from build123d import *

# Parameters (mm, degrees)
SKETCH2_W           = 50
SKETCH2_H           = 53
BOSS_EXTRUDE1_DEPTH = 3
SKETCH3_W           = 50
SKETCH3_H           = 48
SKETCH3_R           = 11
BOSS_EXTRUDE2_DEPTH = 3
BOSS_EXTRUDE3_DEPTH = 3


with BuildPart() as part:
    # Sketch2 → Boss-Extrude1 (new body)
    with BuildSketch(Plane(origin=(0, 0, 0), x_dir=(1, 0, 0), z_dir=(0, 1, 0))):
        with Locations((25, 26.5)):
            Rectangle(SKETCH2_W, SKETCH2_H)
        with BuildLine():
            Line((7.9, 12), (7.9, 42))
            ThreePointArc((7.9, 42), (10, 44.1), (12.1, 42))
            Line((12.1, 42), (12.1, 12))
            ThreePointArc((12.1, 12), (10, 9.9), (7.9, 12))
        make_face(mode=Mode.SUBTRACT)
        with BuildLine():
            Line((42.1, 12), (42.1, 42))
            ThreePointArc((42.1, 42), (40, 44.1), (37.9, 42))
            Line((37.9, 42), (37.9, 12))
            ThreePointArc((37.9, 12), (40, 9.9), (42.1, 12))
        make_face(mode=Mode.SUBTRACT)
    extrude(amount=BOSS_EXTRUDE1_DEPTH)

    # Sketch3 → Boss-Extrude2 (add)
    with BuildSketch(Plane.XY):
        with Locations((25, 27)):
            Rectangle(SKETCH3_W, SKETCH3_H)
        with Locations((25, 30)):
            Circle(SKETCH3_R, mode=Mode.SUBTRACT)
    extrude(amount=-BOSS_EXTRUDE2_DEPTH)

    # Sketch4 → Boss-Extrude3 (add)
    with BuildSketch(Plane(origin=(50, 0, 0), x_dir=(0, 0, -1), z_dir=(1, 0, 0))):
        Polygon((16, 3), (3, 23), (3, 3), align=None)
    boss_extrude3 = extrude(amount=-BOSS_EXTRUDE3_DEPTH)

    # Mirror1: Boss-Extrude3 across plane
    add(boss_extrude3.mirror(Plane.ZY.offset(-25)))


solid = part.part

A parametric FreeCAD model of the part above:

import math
import FreeCAD as App
import Part
import Sketcher
from FreeCAD import Vector
Q = App.Units.Quantity

doc = App.newDocument("Part")
body = doc.addObject("PartDesign::Body", "Body")

# Sketch on XZ plane
sketch1 = doc.addObject("Sketcher::SketchObject", "Sketch")
body.addObject(sketch1)
sketch1.AttachmentSupport = (doc.XZ_Plane, [""])
sketch1.MapMode = "FlatFace"
sketch1.addGeometry([
    Part.LineSegment(Vector(0, -53, 0), Vector(0, 0, 0)),  # 0
    Part.LineSegment(Vector(0, 0, 0), Vector(50, 0, 0)),  # 1
    Part.LineSegment(Vector(50, 0, 0), Vector(50, -53, 0)),  # 2
    Part.LineSegment(Vector(50, -53, 0), Vector(0, -53, 0)),  # 3
    Part.ArcOfCircle(Part.Circle(Vector(10, -12, 0), Vector(0, 0, 1), 2.1), math.radians(0), math.radians(180)),  # 4
    Part.LineSegment(Vector(7.9, -12, 0), Vector(7.9, -42, 0)),  # 5
    Part.ArcOfCircle(Part.Circle(Vector(10, -42, 0), Vector(0, 0, 1), 2.1), math.radians(180), math.radians(360)),  # 6
    Part.LineSegment(Vector(12.1, -42, 0), Vector(12.1, -12, 0)),  # 7
    Part.LineSegment(Vector(42.1, -42, 0), Vector(42.1, -12, 0)),  # 8
    Part.ArcOfCircle(Part.Circle(Vector(40, -12, 0), Vector(0, 0, 1), 2.1), math.radians(0), math.radians(180)),  # 9
    Part.LineSegment(Vector(37.9, -12, 0), Vector(37.9, -42, 0)),  # 10
    Part.ArcOfCircle(Part.Circle(Vector(40, -42, 0), Vector(0, 0, 1), 2.1), math.radians(180), math.radians(360)),  # 11
], False)
sketch1.addConstraint([
    Sketcher.Constraint("Coincident", 0, 2, 1, 1),
    Sketcher.Constraint("Coincident", 1, 2, 2, 1),
    Sketcher.Constraint("Coincident", 2, 2, 3, 1),
    Sketcher.Constraint("Coincident", 3, 2, 0, 1),
    Sketcher.Constraint("Tangent", 4, 2, 5, 1),
    Sketcher.Constraint("Tangent", 5, 2, 6, 1),
    Sketcher.Constraint("Tangent", 6, 2, 7, 1),
    Sketcher.Constraint("Tangent", 7, 2, 4, 1),
    Sketcher.Constraint("Tangent", 8, 2, 9, 1),
    Sketcher.Constraint("Tangent", 9, 2, 10, 1),
    Sketcher.Constraint("Tangent", 10, 2, 11, 1),
    Sketcher.Constraint("Tangent", 11, 2, 8, 1),
    Sketcher.Constraint("Vertical", 0),
    Sketcher.Constraint("Horizontal", 1),
    Sketcher.Constraint("Vertical", 2),
    Sketcher.Constraint("Horizontal", 3),
    Sketcher.Constraint("Vertical", 5),
    Sketcher.Constraint("Vertical", 7),
    Sketcher.Constraint("Vertical", 8),
    Sketcher.Constraint("Vertical", 10),
    Sketcher.Constraint("Coincident", 0, 2, -1, 1),
    Sketcher.Constraint("Equal", 6, 9),
    Sketcher.Constraint("Horizontal", 4, 3, 9, 3),
    Sketcher.Constraint("Horizontal", 6, 3, 11, 3),
    Sketcher.Constraint("Radius", 4, Q("2.1 mm")),
    Sketcher.Constraint("DistanceX", 1, 1, 1, 2, Q("50 mm")),
    Sketcher.Constraint("DistanceY", 0, 1, 0, 2, Q("53 mm")),
    Sketcher.Constraint("DistanceY", 5, 2, 5, 1, Q("30 mm")),
    Sketcher.Constraint("DistanceX", -1, 1, 4, 3, Q("10 mm")),
    Sketcher.Constraint("DistanceY", 4, 3, -1, 1, Q("12 mm")),
    Sketcher.Constraint("DistanceX", -1, 1, 9, 3, Q("40 mm")),
])
pad1 = doc.addObject("PartDesign::Pad", "Pad")
body.addObject(pad1)
pad1.Profile = sketch1
pad1.Length = 3
pad1.Reversed = True

# Sketch on XY plane
sketch2 = doc.addObject("Sketcher::SketchObject", "Sketch001")
body.addObject(sketch2)
sketch2.AttachmentSupport = (doc.XY_Plane, [""])
sketch2.MapMode = "FlatFace"
sketch2.addGeometry([
    Part.LineSegment(Vector(0, 51, 0), Vector(0, 3, 0)),  # 0
    Part.LineSegment(Vector(0, 3, 0), Vector(50, 3, 0)),  # 1
    Part.LineSegment(Vector(50, 3, 0), Vector(50, 51, 0)),  # 2
    Part.LineSegment(Vector(50, 51, 0), Vector(0, 51, 0)),  # 3
    Part.Circle(Vector(25, 30, 0), Vector(0, 0, 1), 11),  # 4
], False)
sketch2.addConstraint([
    Sketcher.Constraint("Coincident", 0, 2, 1, 1),
    Sketcher.Constraint("Coincident", 1, 2, 2, 1),
    Sketcher.Constraint("Coincident", 2, 2, 3, 1),
    Sketcher.Constraint("Coincident", 3, 2, 0, 1),
    Sketcher.Constraint("Vertical", 0),
    Sketcher.Constraint("Horizontal", 1),
    Sketcher.Constraint("Vertical", 2),
    Sketcher.Constraint("Horizontal", 3),
    Sketcher.Constraint("PointOnObject", 0, 2, -2),
    Sketcher.Constraint("Diameter", 4, Q("22 mm")),
    Sketcher.Constraint("DistanceX", 1, 1, 1, 2, Q("50 mm")),
    Sketcher.Constraint("DistanceY", 0, 2, 0, 1, Q("48 mm")),
    Sketcher.Constraint("DistanceX", -1, 1, 4, 3, Q("25 mm")),
    Sketcher.Constraint("DistanceY", -1, 1, 4, 3, Q("30 mm")),
    Sketcher.Constraint("DistanceY", -1, 1, 0, 2, Q("3 mm")),
])
pad2 = doc.addObject("PartDesign::Pad", "Pad001")
body.addObject(pad2)
pad2.Profile = sketch2
pad2.Length = 3
pad2.Reversed = True

# Sketch on YZ plane
sketch3 = doc.addObject("Sketcher::SketchObject", "Sketch002")
body.addObject(sketch3)
sketch3.AttachmentSupport = (doc.YZ_Plane, [""])
sketch3.MapMode = "FlatFace"
sketch3.AttachmentOffset = App.Placement(Vector(0, 0, 50), App.Rotation())
sketch3.addGeometry([
    Part.LineSegment(Vector(3, -16, 0), Vector(23, -3, 0)),
    Part.LineSegment(Vector(23, -3, 0), Vector(3, -3, 0)),
    Part.LineSegment(Vector(3, -3, 0), Vector(3, -16, 0)),
], False)
sketch3.addConstraint([
    Sketcher.Constraint("Coincident", 0, 2, 1, 1),
    Sketcher.Constraint("Coincident", 1, 2, 2, 1),
    Sketcher.Constraint("Coincident", 2, 2, 0, 1),
    Sketcher.Constraint("Horizontal", 1),
    Sketcher.Constraint("Vertical", 2),
    Sketcher.Constraint("DistanceX", 1, 2, 1, 1, Q("20 mm")),
    Sketcher.Constraint("DistanceY", 2, 2, 2, 1, Q("13 mm")),
    Sketcher.Constraint("DistanceX", -1, 1, 0, 2, Q("23 mm")),
    Sketcher.Constraint("DistanceY", 0, 2, -1, 1, Q("3 mm")),
])
pad3 = doc.addObject("PartDesign::Pad", "Pad002")
body.addObject(pad3)
pad3.Profile = sketch3
pad3.Length = 3
pad3.Reversed = True
doc.recompute()

datumplane = doc.addObject("PartDesign::Plane", "DatumPlane")
body.addObject(datumplane)
datumplane.AttachmentSupport = (doc.YZ_Plane, [""])
datumplane.MapMode = "FlatFace"
datumplane.AttachmentOffset = App.Placement(Vector(0, 0, 25), App.Rotation())
mirrored = doc.addObject("PartDesign::Mirrored", "Mirrored")
body.addObject(mirrored)
mirrored.Originals = [pad3]
mirrored.MirrorPlane = (datumplane, [""])
body.Tip = mirrored

doc.recompute()
